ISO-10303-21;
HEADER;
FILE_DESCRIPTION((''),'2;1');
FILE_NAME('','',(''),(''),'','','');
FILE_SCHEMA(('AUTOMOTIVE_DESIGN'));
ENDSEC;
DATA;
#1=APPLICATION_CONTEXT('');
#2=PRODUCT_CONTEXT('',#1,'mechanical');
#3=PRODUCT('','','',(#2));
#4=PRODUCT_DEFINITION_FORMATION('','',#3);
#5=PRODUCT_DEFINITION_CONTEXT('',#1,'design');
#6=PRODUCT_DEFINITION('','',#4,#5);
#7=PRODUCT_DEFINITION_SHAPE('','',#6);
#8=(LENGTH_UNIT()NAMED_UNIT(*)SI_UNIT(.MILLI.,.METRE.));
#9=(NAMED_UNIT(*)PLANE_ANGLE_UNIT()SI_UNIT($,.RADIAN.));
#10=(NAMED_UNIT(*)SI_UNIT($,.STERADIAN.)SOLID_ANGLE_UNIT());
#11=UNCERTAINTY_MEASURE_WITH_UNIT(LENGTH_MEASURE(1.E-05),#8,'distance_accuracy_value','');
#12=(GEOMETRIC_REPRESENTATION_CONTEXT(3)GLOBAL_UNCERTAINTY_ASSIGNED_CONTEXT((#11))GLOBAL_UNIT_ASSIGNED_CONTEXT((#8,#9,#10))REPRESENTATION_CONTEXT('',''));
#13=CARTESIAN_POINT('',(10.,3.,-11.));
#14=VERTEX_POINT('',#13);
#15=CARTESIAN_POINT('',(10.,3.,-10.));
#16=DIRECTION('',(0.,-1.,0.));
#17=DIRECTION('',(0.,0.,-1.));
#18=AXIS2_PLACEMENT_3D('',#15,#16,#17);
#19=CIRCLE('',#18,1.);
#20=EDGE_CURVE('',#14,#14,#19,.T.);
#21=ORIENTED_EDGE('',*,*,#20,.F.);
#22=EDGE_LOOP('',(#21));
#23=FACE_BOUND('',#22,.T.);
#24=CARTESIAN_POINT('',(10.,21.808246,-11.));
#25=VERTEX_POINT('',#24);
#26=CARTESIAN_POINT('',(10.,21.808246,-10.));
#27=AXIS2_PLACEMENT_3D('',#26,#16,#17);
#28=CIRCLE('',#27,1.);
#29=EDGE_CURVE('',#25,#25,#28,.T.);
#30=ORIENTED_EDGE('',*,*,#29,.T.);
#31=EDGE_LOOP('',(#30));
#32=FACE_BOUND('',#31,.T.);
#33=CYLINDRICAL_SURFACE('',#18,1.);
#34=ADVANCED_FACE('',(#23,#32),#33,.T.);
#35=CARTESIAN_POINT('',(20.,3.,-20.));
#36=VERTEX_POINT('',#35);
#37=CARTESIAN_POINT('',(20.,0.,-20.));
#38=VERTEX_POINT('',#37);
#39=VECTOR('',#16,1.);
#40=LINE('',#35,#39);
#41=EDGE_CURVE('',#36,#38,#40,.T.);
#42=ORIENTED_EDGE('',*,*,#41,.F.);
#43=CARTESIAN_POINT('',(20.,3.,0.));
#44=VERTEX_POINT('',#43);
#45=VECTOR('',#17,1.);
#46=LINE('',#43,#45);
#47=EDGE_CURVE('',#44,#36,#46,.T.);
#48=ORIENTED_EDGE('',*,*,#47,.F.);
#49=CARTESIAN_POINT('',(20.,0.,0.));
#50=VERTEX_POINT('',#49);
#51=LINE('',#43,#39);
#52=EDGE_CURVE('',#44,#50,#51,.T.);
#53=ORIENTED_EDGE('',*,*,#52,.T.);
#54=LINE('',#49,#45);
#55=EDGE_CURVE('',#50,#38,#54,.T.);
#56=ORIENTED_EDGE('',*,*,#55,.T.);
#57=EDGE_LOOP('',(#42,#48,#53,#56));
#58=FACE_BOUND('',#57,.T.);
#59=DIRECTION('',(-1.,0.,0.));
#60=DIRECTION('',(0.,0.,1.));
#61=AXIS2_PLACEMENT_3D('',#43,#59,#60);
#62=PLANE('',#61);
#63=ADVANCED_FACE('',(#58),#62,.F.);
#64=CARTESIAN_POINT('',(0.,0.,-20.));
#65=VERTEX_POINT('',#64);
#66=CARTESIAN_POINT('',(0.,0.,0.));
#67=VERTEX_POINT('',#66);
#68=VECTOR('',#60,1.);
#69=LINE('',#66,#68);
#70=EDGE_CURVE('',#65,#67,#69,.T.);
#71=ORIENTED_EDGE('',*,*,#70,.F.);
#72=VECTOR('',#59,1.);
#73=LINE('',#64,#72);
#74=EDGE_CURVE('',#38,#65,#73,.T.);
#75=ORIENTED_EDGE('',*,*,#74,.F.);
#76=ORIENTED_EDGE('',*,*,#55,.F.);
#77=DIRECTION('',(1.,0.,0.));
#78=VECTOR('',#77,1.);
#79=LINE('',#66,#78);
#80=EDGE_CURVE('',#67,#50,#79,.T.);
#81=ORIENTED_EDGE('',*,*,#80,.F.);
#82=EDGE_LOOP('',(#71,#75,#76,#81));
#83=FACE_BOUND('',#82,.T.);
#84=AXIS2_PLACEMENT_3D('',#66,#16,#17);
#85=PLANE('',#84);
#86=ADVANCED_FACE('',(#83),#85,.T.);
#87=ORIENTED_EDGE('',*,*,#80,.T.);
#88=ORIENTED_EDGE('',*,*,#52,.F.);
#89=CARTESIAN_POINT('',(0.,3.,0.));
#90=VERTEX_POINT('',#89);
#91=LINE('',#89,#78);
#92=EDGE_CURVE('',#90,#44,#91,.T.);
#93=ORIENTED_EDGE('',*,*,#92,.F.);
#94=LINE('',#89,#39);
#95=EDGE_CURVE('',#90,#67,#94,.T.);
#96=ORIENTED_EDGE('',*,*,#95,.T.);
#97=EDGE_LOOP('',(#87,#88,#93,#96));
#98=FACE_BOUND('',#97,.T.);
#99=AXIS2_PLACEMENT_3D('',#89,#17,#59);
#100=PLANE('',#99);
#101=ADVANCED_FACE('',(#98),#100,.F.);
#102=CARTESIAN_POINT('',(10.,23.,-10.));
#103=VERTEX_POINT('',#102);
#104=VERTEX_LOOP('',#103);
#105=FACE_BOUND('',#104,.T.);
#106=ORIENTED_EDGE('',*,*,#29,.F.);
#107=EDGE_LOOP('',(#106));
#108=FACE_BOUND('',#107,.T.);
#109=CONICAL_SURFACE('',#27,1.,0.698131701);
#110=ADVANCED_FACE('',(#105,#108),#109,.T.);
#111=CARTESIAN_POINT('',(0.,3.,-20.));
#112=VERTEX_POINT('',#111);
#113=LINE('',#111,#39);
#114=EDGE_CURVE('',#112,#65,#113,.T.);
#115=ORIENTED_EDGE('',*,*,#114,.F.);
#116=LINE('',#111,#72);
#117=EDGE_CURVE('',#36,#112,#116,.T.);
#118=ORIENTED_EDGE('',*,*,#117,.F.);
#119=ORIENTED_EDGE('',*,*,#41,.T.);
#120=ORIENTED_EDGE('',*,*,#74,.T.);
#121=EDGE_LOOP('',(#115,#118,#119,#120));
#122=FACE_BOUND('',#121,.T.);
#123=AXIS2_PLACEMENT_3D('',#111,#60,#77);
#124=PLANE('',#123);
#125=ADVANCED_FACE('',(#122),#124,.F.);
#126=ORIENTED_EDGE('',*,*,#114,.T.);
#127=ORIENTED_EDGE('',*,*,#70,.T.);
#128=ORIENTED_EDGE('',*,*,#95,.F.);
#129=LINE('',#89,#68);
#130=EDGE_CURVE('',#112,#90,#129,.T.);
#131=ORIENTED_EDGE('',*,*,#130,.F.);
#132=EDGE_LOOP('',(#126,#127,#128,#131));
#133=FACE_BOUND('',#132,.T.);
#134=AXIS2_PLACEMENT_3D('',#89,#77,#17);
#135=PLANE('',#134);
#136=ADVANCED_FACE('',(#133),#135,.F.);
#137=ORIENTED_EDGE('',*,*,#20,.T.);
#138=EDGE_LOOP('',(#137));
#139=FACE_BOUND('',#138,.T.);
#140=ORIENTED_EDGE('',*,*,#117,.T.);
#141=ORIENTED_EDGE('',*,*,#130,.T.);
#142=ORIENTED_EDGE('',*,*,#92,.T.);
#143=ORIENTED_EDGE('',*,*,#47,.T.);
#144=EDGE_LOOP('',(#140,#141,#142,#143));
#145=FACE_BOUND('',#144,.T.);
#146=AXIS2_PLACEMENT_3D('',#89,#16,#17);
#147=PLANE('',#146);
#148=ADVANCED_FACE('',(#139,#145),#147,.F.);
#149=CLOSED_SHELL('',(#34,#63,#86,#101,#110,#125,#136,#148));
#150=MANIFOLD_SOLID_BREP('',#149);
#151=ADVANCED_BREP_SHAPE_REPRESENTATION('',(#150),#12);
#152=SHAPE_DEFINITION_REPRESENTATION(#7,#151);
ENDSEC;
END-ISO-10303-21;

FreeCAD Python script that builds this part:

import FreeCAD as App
import Part
import Sketcher
from FreeCAD import Vector
Q = App.Units.Quantity


def add_polygon(sketch, points):
    """Adds a closed chain of lines whose ends are joined by coincident constraints."""
    first, n = sketch.GeometryCount, len(points)
    for a, b in zip(points, points[1:] + points[:1]):
        sketch.addGeometry(Part.LineSegment(App.Vector(*a, 0), App.Vector(*b, 0)), False)
    for i in range(n):
        sketch.addConstraint(Sketcher.Constraint("Coincident", first + i, 2, first + (i + 1) % n, 1))

doc = App.newDocument("Part")
params = doc.addObject("Spreadsheet::Sheet", "Params")
for row, (alias, value) in enumerate([
    ("sketch1_width", "20 mm"),
    ("pad1_length", "3 mm"),
    ("sketch2_width", "20 mm"),
    ("sketch2_height", "1 mm"),
    ("revolution_angle", "360 deg"),
], start=1):
    params.set(f"A{row}", alias)
    params.set(f"B{row}", "=" + value)
    params.setAlias(f"B{row}", alias)

body = doc.addObject("PartDesign::Body", "Body")

sketch1 = body.newObject("Sketcher::SketchObject", "Sketch")
sketch1.AttachmentSupport = (doc.getObject("XZ_Plane"), [""])
sketch1.MapMode = "FlatFace"
add_polygon(sketch1, [(0, -20), (0, 0), (20, 0), (20, -20)])
sketch1.addConstraint([
    Sketcher.Constraint("Vertical", 0),
    Sketcher.Constraint("Horizontal", 1),
    Sketcher.Constraint("Vertical", 2),
    Sketcher.Constraint("Horizontal", 3),
    Sketcher.Constraint("Coincident", 0, 2, -1, 1),
    Sketcher.Constraint("Equal", 3, 0),
    Sketcher.Constraint("DistanceX", 1, 1, 1, 2, Q("20 mm")),
])
sketch1.setExpression("Constraints[10]", "Params.sketch1_width")
pad1 = body.newObject("PartDesign::Pad", "Pad")
pad1.Profile = sketch1
pad1.setExpression("Length", "Params.pad1_length")
pad1.Reversed = True

sketch2 = body.newObject("Sketcher::SketchObject", "Sketch001")
sketch2.AttachmentSupport = (doc.getObject("YZ_Plane"), [""])
sketch2.MapMode = "FlatFace"
sketch2.AttachmentOffset = App.Placement(Vector(0, 0, 10), App.Rotation())
add_polygon(sketch2, [(23, -10), (3, -10), (3, -11), (21.8, -11)])
sketch2.addGeometry(Part.LineSegment(Vector(3, -10, 0), Vector(23, -10, 0)), True)
sketch2.addConstraint([
    Sketcher.Constraint("Horizontal", 0),
    Sketcher.Constraint("Vertical", 1),
    Sketcher.Constraint("Horizontal", 2),
    Sketcher.Constraint("Horizontal", 4),
    Sketcher.Constraint("Coincident", 4, 1, 0, 2),
    Sketcher.Constraint("Equal", 0, 4),
    Sketcher.Constraint("DistanceX", 0, 2, 0, 1, Q("20 mm")),
    Sketcher.Constraint("DistanceY", 1, 2, 1, 1, Q("1 mm")),
    Sketcher.Constraint("Angle", 3, Q("40 deg")),
    Sketcher.Constraint("DistanceX", -1, 1, 0, 2, Q("3 mm")),
    Sketcher.Constraint("DistanceY", 0, 2, -1, 1, Q("10 mm")),
])
sketch2.setExpression("Constraints[10]", "Params.sketch2_width")
sketch2.setExpression("Constraints[11]", "Params.sketch2_height")
revolution = body.newObject("PartDesign::Revolution", "Revolution")
revolution.Profile = sketch2
revolution.ReferenceAxis = (sketch2, ["Axis0"])
revolution.setExpression("Angle", "Params.revolution_angle")

doc.recompute()
